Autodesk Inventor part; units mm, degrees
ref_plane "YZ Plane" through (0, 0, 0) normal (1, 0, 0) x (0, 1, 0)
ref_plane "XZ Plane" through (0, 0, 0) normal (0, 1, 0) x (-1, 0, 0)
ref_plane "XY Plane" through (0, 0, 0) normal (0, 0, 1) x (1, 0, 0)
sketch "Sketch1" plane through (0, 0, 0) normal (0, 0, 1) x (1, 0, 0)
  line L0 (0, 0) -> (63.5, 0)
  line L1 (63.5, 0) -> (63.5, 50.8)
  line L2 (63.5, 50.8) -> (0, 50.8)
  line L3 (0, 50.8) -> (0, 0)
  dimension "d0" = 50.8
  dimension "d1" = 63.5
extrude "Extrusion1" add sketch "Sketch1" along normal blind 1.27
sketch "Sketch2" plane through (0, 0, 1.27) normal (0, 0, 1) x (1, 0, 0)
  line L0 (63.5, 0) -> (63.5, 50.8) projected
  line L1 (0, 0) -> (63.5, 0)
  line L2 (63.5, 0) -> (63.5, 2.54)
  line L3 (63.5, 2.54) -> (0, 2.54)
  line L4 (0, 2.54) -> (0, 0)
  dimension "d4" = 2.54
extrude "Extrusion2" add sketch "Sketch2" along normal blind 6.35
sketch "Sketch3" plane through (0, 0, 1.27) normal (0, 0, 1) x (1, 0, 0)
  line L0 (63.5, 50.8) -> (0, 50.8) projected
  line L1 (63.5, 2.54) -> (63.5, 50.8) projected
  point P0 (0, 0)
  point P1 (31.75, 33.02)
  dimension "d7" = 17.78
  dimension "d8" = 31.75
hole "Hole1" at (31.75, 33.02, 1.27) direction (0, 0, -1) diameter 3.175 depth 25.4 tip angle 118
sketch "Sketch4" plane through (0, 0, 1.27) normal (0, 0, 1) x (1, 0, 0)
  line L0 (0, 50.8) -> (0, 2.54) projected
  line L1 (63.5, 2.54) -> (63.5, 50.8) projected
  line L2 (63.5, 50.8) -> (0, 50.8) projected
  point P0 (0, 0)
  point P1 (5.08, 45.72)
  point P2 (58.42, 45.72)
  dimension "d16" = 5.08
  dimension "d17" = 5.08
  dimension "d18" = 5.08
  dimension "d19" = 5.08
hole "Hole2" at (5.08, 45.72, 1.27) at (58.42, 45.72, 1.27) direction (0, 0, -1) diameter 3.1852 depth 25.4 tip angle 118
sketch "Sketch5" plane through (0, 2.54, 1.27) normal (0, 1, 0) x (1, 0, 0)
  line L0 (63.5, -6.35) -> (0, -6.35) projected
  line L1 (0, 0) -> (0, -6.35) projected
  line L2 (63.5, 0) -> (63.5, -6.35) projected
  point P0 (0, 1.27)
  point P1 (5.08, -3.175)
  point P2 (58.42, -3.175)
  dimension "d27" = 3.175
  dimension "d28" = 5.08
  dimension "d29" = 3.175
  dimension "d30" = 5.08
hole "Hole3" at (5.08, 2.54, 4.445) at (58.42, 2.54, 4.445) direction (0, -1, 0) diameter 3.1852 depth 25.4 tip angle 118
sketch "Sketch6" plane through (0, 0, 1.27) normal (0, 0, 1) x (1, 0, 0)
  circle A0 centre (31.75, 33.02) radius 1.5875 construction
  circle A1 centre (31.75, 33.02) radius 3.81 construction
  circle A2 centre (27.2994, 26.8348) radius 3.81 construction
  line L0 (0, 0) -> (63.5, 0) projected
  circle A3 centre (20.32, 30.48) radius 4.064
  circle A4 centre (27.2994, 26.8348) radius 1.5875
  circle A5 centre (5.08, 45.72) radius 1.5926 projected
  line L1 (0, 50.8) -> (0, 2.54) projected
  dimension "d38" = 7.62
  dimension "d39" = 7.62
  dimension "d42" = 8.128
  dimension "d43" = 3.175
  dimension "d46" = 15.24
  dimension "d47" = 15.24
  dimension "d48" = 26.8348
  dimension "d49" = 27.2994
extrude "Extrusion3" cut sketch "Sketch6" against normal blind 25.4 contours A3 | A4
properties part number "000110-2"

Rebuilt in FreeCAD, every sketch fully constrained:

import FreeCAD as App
import Part
import Sketcher

V = App.Vector
Q = App.Units.Quantity


def add_polygon(sketch, points):
    """Adds a closed chain of lines whose ends are joined by coincident constraints."""
    first, n = sketch.GeometryCount, len(points)
    for a, b in zip(points, points[1:] + points[:1]):
        sketch.addGeometry(Part.LineSegment(App.Vector(*a, 0), App.Vector(*b, 0)), False)
    for i in range(n):
        sketch.addConstraint(Sketcher.Constraint("Coincident", first + i, 2, first + (i + 1) % n, 1))

doc = App.newDocument("Part")
body = doc.addObject("PartDesign::Body", "Body")

sketch1 = body.newObject("Sketcher::SketchObject", "Sketch")
sketch1.AttachmentSupport = (doc.getObject("XY_Plane"), [""])
sketch1.MapMode = "FlatFace"
add_polygon(sketch1, [(0, 50.8), (0, 0), (63.5, 0), (63.5, 50.8)])
sketch1.addConstraint([
    Sketcher.Constraint("Vertical", 0),
    Sketcher.Constraint("Horizontal", 1),
    Sketcher.Constraint("Vertical", 2),
    Sketcher.Constraint("Horizontal", 3),
    Sketcher.Constraint("Coincident", 0, 2, -1, 1),
    Sketcher.Constraint("DistanceY", 0, 2, 0, 1, Q("2 in")),
    Sketcher.Constraint("DistanceX", 1, 1, 1, 2, Q("2.5 in")),
])
pad1 = body.newObject("PartDesign::Pad", "Pad")
pad1.Profile = sketch1
pad1.Length = Q("0.05 in")

sketch2 = body.newObject("Sketcher::SketchObject", "Sketch001")
sketch2.AttachmentSupport = (doc.getObject("XY_Plane"), [""])
sketch2.MapMode = "FlatFace"
sketch2.AttachmentOffset = App.Placement(V(0, 0, 0.05 * 25.4), App.Rotation())
add_polygon(sketch2, [(0, 0), (63.5, 0), (63.5, 2.54), (0, 2.54)])
sketch2.addConstraint([
    Sketcher.Constraint("Horizontal", 0),
    Sketcher.Constraint("Vertical", 1),
    Sketcher.Constraint("Horizontal", 2),
    Sketcher.Constraint("Vertical", 3),
    Sketcher.Constraint("Coincident", 3, 2, -1, 1),
    Sketcher.Constraint("DistanceY", 1, 1, 1, 2, Q("0.1 in")),
    Sketcher.Constraint("DistanceX", 0, 1, 0, 2, Q("2.5 in")),
])
pad2 = body.newObject("PartDesign::Pad", "Pad001")
pad2.Profile = sketch2
pad2.Length = Q("0.25 in")

sketch3 = body.newObject("Sketcher::SketchObject", "Sketch002")
sketch3.AttachmentSupport = (doc.getObject("XY_Plane"), [""])
sketch3.MapMode = "FlatFace"
sketch3.AttachmentOffset = App.Placement(V(0, 0, 0.05 * 25.4), App.Rotation())
sketch3.addGeometry(Part.Circle(V(31.75, 33.02, 0), V(0, 0, 1), 1.5875), False)
sketch3.addConstraint([
    Sketcher.Constraint("Diameter", 0, Q("0.125 in")),
    Sketcher.Constraint("DistanceY", -1, 1, 0, 3, Q("1.3 in")),
    Sketcher.Constraint("DistanceX", -1, 1, 0, 3, Q("1.25 in")),
])
doc.recompute()
hole = body.newObject("PartDesign::Hole", "Hole")
hole.Profile = sketch3
hole.ThreadType = "None"
hole.Diameter = Q("0.125 in")
hole.DepthType = "Dimension"
hole.Depth = Q("1 in")
hole.DrillPoint = "Angled"
hole.DrillPointAngle = 118

sketch4 = body.newObject("Sketcher::SketchObject", "Sketch003")
sketch4.AttachmentSupport = (doc.getObject("XY_Plane"), [""])
sketch4.MapMode = "FlatFace"
sketch4.AttachmentOffset = App.Placement(V(0, 0, 0.05 * 25.4), App.Rotation())
sketch4.addGeometry([
    Part.Circle(V(5.08, 45.72, 0), V(0, 0, 1), 1.5926),
    Part.Circle(V(58.42, 45.72, 0), V(0, 0, 1), 1.5926),
], False)
sketch4.addConstraint([
    Sketcher.Constraint("Equal", 0, 1),
    Sketcher.Constraint("Horizontal", 0, 3, 1, 3),
    Sketcher.Constraint("Diameter", 0, Q("0.1254 in")),
    Sketcher.Constraint("DistanceX", -1, 1, 0, 3, Q("0.2 in")),
    Sketcher.Constraint("DistanceY", -1, 1, 0, 3, Q("1.8 in")),
    Sketcher.Constraint("DistanceX", -1, 1, 1, 3, Q("2.3 in")),
])
doc.recompute()
hole2 = body.newObject("PartDesign::Hole", "Hole001")
hole2.Profile = sketch4
hole2.ThreadType = "None"
hole2.Diameter = Q("0.1254016 in")
hole2.DepthType = "Dimension"
hole2.Depth = Q("1 in")
hole2.DrillPoint = "Angled"
hole2.DrillPointAngle = 118

sketch5 = body.newObject("Sketcher::SketchObject", "Sketch004")
sketch5.AttachmentSupport = (doc.getObject("XZ_Plane"), [""])
sketch5.MapMode = "FlatFace"
sketch5.AttachmentOffset = App.Placement(V(0, 0, -0.1 * 25.4), App.Rotation())
sketch5.addGeometry([
    Part.Circle(V(5.08, 4.445, 0), V(0, 0, 1), 1.5926),
    Part.Circle(V(58.42, 4.445, 0), V(0, 0, 1), 1.5926),
], False)
sketch5.addConstraint([
    Sketcher.Constraint("Equal", 0, 1),
    Sketcher.Constraint("Horizontal", 0, 3, 1, 3),
    Sketcher.Constraint("Diameter", 0, Q("0.1254 in")),
    Sketcher.Constraint("DistanceX", -1, 1, 0, 3, Q("0.2 in")),
    Sketcher.Constraint("DistanceX", -1, 1, 1, 3, Q("2.3 in")),
    Sketcher.Constraint("DistanceY", -1, 1, 0, 3, Q("0.175 in")),
])
doc.recompute()
hole3 = body.newObject("PartDesign::Hole", "Hole002")
hole3.Profile = sketch5
hole3.ThreadType = "None"
hole3.Diameter = Q("0.1254016 in")
hole3.DepthType = "Dimension"
hole3.Depth = Q("1 in")
hole3.DrillPoint = "Angled"
hole3.DrillPointAngle = 118
hole3.Reversed = True

sketch6 = body.newObject("Sketcher::SketchObject", "Sketch005")
sketch6.AttachmentSupport = (doc.getObject("XY_Plane"), [""])
sketch6.MapMode = "FlatFace"
sketch6.AttachmentOffset = App.Placement(V(0, 0, 0.05 * 25.4), App.Rotation())
sketch6.addGeometry([
    Part.Circle(V(20.32, 30.48, 0), V(0, 0, 1), 4.064),
    Part.Circle(V(27.2994, 26.8348, 0), V(0, 0, 1), 1.5875),
], False)
sketch6.addConstraint([
    Sketcher.Constraint("Diameter", 0, Q("0.32 in")),
    Sketcher.Constraint("Diameter", 1, Q("0.125 in")),
    Sketcher.Constraint("DistanceX", -1, 1, 0, 3, Q("0.8 in")),
    Sketcher.Constraint("DistanceY", -1, 1, 0, 3, Q("1.2 in")),
    Sketcher.Constraint("DistanceY", -1, 1, 1, 3, Q("1.0565 in")),
    Sketcher.Constraint("DistanceX", -1, 1, 1, 3, Q("27.2994 mm")),
])
pocket1 = body.newObject("PartDesign::Pocket", "Pocket")
pocket1.Profile = sketch6
pocket1.Length = Q("1 in")

doc.recompute()
